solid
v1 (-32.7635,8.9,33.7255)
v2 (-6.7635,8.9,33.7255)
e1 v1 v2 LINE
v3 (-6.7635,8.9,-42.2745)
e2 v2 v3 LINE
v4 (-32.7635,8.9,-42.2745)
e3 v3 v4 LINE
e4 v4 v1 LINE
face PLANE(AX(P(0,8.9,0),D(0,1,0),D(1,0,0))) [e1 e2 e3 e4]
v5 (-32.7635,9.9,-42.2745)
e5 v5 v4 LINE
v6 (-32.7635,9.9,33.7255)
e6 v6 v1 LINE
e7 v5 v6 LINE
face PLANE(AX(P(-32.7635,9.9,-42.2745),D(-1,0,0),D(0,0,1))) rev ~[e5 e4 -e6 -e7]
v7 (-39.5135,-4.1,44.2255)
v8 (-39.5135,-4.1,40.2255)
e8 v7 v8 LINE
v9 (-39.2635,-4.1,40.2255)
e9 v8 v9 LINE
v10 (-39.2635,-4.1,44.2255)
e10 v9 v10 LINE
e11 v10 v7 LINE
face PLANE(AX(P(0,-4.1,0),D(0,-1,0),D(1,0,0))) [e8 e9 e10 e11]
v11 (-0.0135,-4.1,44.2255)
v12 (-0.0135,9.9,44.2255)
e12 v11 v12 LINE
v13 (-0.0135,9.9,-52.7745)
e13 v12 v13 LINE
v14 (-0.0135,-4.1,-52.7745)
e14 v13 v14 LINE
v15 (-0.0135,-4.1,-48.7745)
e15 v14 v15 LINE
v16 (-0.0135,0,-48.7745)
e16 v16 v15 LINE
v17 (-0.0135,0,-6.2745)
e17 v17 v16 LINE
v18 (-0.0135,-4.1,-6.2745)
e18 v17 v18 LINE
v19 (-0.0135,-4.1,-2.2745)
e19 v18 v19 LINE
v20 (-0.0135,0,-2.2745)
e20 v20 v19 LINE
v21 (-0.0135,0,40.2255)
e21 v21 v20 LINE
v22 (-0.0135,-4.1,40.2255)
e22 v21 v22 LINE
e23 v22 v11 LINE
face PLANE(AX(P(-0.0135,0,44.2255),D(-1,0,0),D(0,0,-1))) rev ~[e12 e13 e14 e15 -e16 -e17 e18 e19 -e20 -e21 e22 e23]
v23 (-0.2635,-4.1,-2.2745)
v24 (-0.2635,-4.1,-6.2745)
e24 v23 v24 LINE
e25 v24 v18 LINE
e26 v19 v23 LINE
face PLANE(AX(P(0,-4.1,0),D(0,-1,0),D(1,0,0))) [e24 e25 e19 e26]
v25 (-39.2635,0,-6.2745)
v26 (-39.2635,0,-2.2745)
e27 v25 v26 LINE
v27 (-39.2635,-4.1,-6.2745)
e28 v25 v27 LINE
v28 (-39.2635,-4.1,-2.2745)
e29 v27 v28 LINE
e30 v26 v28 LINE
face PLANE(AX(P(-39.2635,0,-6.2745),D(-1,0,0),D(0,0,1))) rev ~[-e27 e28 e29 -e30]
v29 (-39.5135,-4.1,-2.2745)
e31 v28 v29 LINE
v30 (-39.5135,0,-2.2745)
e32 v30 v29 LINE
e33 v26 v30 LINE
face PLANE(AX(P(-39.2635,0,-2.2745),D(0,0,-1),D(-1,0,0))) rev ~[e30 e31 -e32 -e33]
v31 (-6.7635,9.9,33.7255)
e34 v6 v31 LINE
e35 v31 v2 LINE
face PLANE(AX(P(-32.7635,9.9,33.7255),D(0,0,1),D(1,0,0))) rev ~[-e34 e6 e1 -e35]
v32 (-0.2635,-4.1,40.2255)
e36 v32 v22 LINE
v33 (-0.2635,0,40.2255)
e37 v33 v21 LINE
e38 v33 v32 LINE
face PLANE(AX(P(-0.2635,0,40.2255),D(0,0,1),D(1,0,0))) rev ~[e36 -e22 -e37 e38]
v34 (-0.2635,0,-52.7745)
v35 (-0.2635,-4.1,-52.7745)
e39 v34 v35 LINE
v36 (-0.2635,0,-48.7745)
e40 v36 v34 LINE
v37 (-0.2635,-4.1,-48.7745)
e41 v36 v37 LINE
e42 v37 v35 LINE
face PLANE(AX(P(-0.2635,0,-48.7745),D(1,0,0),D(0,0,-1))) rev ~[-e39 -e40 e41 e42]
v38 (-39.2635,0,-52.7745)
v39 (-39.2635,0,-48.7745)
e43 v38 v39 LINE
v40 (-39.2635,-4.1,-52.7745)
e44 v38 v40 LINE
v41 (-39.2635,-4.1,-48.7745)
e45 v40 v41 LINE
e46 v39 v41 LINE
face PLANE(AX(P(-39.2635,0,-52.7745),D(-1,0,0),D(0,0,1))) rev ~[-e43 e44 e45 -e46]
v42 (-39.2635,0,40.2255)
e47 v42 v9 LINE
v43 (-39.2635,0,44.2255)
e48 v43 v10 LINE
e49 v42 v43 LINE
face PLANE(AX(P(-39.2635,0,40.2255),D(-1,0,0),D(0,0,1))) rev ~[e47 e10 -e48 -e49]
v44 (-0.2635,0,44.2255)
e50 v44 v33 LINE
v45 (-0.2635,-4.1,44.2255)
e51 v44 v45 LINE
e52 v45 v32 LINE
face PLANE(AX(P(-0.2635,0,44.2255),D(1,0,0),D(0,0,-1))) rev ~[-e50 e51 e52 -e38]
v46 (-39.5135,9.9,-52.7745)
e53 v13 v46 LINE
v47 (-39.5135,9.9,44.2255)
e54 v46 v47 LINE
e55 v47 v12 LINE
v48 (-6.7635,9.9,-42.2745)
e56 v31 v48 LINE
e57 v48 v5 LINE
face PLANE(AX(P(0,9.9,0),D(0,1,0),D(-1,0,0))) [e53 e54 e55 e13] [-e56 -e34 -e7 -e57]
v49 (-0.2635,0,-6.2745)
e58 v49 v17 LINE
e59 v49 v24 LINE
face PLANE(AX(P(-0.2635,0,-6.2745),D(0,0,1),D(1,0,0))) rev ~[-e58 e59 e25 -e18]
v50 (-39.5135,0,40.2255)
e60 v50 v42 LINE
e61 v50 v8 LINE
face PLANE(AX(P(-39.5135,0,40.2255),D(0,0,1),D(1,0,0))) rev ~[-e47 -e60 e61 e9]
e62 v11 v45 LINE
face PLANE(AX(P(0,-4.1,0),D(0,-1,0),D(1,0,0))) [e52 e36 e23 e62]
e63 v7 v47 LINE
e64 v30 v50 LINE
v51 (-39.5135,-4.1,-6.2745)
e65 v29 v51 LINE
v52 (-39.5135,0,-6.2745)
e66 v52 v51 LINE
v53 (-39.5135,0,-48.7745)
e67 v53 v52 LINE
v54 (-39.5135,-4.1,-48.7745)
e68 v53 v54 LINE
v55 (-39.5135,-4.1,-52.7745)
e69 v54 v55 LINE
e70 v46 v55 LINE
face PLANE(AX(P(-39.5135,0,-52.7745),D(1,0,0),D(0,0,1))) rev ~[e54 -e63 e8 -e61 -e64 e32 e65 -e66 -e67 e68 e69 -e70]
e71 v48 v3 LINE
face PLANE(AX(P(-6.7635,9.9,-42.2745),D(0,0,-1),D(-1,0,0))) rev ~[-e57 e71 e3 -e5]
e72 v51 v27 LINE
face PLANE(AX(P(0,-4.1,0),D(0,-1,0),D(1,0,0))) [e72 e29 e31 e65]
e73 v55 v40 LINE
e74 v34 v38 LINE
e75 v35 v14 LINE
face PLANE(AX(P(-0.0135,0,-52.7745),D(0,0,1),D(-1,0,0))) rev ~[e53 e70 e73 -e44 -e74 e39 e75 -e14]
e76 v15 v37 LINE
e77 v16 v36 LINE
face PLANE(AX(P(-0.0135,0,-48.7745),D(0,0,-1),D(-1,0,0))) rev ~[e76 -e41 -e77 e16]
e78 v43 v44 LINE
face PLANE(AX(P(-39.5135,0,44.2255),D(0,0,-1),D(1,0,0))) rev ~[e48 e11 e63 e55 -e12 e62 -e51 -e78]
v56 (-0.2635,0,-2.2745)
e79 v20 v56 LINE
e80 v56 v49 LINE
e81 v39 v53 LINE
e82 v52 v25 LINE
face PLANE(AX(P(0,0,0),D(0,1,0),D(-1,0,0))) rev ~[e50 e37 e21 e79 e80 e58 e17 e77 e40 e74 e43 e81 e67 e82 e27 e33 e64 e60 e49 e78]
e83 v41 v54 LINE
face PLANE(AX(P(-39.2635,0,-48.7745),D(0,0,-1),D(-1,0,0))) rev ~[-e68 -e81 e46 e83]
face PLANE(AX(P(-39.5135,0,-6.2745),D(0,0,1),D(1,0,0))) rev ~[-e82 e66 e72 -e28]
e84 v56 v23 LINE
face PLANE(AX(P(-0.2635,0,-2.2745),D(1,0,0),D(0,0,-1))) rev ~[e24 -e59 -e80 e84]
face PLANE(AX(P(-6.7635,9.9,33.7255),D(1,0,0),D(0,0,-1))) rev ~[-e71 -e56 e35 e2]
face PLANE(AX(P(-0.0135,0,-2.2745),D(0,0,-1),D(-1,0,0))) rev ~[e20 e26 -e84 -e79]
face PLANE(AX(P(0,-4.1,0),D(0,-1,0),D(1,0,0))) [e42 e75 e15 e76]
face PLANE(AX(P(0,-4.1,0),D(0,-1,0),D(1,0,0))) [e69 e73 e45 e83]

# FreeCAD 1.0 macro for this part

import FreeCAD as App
import Part
import Sketcher
from FreeCAD import Vector

doc = App.newDocument("Part")
body = doc.addObject("PartDesign::Body", "Body")

sketch1 = doc.addObject("Sketcher::SketchObject", "Sketch")
body.addObject(sketch1)
sketch1.AttachmentSupport = (doc.XZ_Plane, [""])
sketch1.MapMode = "FlatFace"
sketch1.addGeometry([
    Part.LineSegment(Vector(-39.5135, -52.7745, 0), Vector(-39.5135, 44.2255, 0)),
    Part.LineSegment(Vector(-39.5135, 44.2255, 0), Vector(-0.0135, 44.2255, 0)),
    Part.LineSegment(Vector(-0.0135, 44.2255, 0), Vector(-0.0135, -52.7745, 0)),
    Part.LineSegment(Vector(-0.0135, -52.7745, 0), Vector(-39.5135, -52.7745, 0)),
], False)
sketch1.addConstraint([
    Sketcher.Constraint("Coincident", 0, 2, 1, 1),
    Sketcher.Constraint("Coincident", 1, 2, 2, 1),
    Sketcher.Constraint("Coincident", 2, 2, 3, 1),
    Sketcher.Constraint("Coincident", 3, 2, 0, 1),
    Sketcher.Constraint("Vertical", 0),
    Sketcher.Constraint("Horizontal", 1),
    Sketcher.Constraint("Vertical", 2),
    Sketcher.Constraint("Horizontal", 3),
    Sketcher.Constraint("DistanceY", 0, 1, 0, 2, 97.0),
    Sketcher.Constraint("DistanceX", 1, 1, 1, 2, 39.5),
    Sketcher.Constraint("DistanceX", 0, 2, -1, 1, 39.5135),
    Sketcher.Constraint("DistanceY", -1, 1, 0, 2, 44.2255),
])
pad1 = doc.addObject("PartDesign::Pad", "Pad")
body.addObject(pad1)
pad1.Profile = sketch1
pad1.Length = 9.9
pad1.Reversed = True

sketch2 = doc.addObject("Sketcher::SketchObject", "Sketch001")
body.addObject(sketch2)
sketch2.AttachmentSupport = (doc.XZ_Plane, [""])
sketch2.MapMode = "FlatFace"
sketch2.AttachmentOffset = App.Placement(Vector(0, 0, -9.9), App.Rotation())
sketch2.addGeometry([
    Part.LineSegment(Vector(-32.7635, -42.2745, 0), Vector(-32.7635, 33.7255, 0)),
    Part.LineSegment(Vector(-32.7635, 33.7255, 0), Vector(-6.7635, 33.7255, 0)),
    Part.LineSegment(Vector(-6.7635, 33.7255, 0), Vector(-6.7635, -42.2745, 0)),
    Part.LineSegment(Vector(-6.7635, -42.2745, 0), Vector(-32.7635, -42.2745, 0)),
], False)
sketch2.addConstraint([
    Sketcher.Constraint("Coincident", 0, 2, 1, 1),
    Sketcher.Constraint("Coincident", 1, 2, 2, 1),
    Sketcher.Constraint("Coincident", 2, 2, 3, 1),
    Sketcher.Constraint("Coincident", 3, 2, 0, 1),
    Sketcher.Constraint("Vertical", 0),
    Sketcher.Constraint("Horizontal", 1),
    Sketcher.Constraint("Vertical", 2),
    Sketcher.Constraint("Horizontal", 3),
    Sketcher.Constraint("DistanceX", 1, 1, 1, 2, 26.0),
    Sketcher.Constraint("DistanceY", 0, 1, 0, 2, 76.0),
    Sketcher.Constraint("DistanceX", 0, 2, -1, 1, 32.7635),
    Sketcher.Constraint("DistanceY", -1, 1, 0, 2, 33.7255),
])
pocket1 = doc.addObject("PartDesign::Pocket", "Pocket")
body.addObject(pocket1)
pocket1.Profile = sketch2
pocket1.Length = 1
pocket1.Reversed = True

sketch3 = doc.addObject("Sketcher::SketchObject", "Sketch002")
body.addObject(sketch3)
sketch3.AttachmentSupport = (doc.XZ_Plane, [""])
sketch3.MapMode = "FlatFace"
sketch3.addGeometry([
    Part.LineSegment(Vector(-0.0135, 40.2255, 0), Vector(-0.0135, 44.2255, 0)),
    Part.LineSegment(Vector(-0.0135, 44.2255, 0), Vector(-0.2635, 44.2255, 0)),
    Part.LineSegment(Vector(-0.2635, 44.2255, 0), Vector(-0.2635, 40.2255, 0)),
    Part.LineSegment(Vector(-0.2635, 40.2255, 0), Vector(-0.0135, 40.2255, 0)),
    Part.LineSegment(Vector(-39.2635, 40.2255, 0), Vector(-39.2635, 44.2255, 0)),
    Part.LineSegment(Vector(-39.2635, 44.2255, 0), Vector(-39.5135, 44.2255, 0)),
    Part.LineSegment(Vector(-39.5135, 44.2255, 0), Vector(-39.5135, 40.2255, 0)),
    Part.LineSegment(Vector(-39.5135, 40.2255, 0), Vector(-39.2635, 40.2255, 0)),
    Part.LineSegment(Vector(-0.0135, -6.2745, 0), Vector(-0.0135, -2.2745, 0)),
    Part.LineSegment(Vector(-0.0135, -2.2745, 0), Vector(-0.2635, -2.2745, 0)),
    Part.LineSegment(Vector(-0.2635, -2.2745, 0), Vector(-0.2635, -6.2745, 0)),
    Part.LineSegment(Vector(-0.2635, -6.2745, 0), Vector(-0.0135, -6.2745, 0)),
    Part.LineSegment(Vector(-0.0135, -52.7745, 0), Vector(-0.0135, -48.7745, 0)),
    Part.LineSegment(Vector(-0.0135, -48.7745, 0), Vector(-0.2635, -48.7745, 0)),
    Part.LineSegment(Vector(-0.2635, -48.7745, 0), Vector(-0.2635, -52.7745, 0)),
    Part.LineSegment(Vector(-0.2635, -52.7745, 0), Vector(-0.0135, -52.7745, 0)),
    Part.LineSegment(Vector(-39.2635, -2.2745, 0), Vector(-39.5135, -2.2745, 0)),
    Part.LineSegment(Vector(-39.5135, -2.2745, 0), Vector(-39.5135, -6.2745, 0)),
    Part.LineSegment(Vector(-39.5135, -6.2745, 0), Vector(-39.2635, -6.2745, 0)),
    Part.LineSegment(Vector(-39.2635, -6.2745, 0), Vector(-39.2635, -2.2745, 0)),
    Part.LineSegment(Vector(-39.2635, -48.7745, 0), Vector(-39.5135, -48.7745, 0)),
    Part.LineSegment(Vector(-39.5135, -48.7745, 0), Vector(-39.5135, -52.7745, 0)),
    Part.LineSegment(Vector(-39.5135, -52.7745, 0), Vector(-39.2635, -52.7745, 0)),
    Part.LineSegment(Vector(-39.2635, -52.7745, 0), Vector(-39.2635, -48.7745, 0)),
], False)
sketch3.addConstraint([
    Sketcher.Constraint("Coincident", 0, 2, 1, 1),
    Sketcher.Constraint("Coincident", 1, 2, 2, 1),
    Sketcher.Constraint("Coincident", 2, 2, 3, 1),
    Sketcher.Constraint("Coincident", 3, 2, 0, 1),
    Sketcher.Constraint("Coincident", 4, 2, 5, 1),
    Sketcher.Constraint("Coincident", 5, 2, 6, 1),
    Sketcher.Constraint("Coincident", 6, 2, 7, 1),
    Sketcher.Constraint("Coincident", 7, 2, 4, 1),
    Sketcher.Constraint("Coincident", 8, 2, 9, 1),
    Sketcher.Constraint("Coincident", 9, 2, 10, 1),
    Sketcher.Constraint("Coincident", 10, 2, 11, 1),
    Sketcher.Constraint("Coincident", 11, 2, 8, 1),
    Sketcher.Constraint("Coincident", 12, 2, 13, 1),
    Sketcher.Constraint("Coincident", 13, 2, 14, 1),
    Sketcher.Constraint("Coincident", 14, 2, 15, 1),
    Sketcher.Constraint("Coincident", 15, 2, 12, 1),
    Sketcher.Constraint("Coincident", 16, 2, 17, 1),
    Sketcher.Constraint("Coincident", 17, 2, 18, 1),
    Sketcher.Constraint("Coincident", 18, 2, 19, 1),
    Sketcher.Constraint("Coincident", 19, 2, 16, 1),
    Sketcher.Constraint("Coincident", 20, 2, 21, 1),
    Sketcher.Constraint("Coincident", 21, 2, 22, 1),
    Sketcher.Constraint("Coincident", 22, 2, 23, 1),
    Sketcher.Constraint("Coincident", 23, 2, 20, 1),
    Sketcher.Constraint("Vertical", 0),
    Sketcher.Constraint("Horizontal", 1),
    Sketcher.Constraint("Vertical", 2),
    Sketcher.Constraint("Horizontal", 3),
    Sketcher.Constraint("Vertical", 4),
    Sketcher.Constraint("Horizontal", 5),
    Sketcher.Constraint("Vertical", 6),
    Sketcher.Constraint("Horizontal", 7),
    Sketcher.Constraint("Vertical", 8),
    Sketcher.Constraint("Horizontal", 9),
    Sketcher.Constraint("Vertical", 10),
    Sketcher.Constraint("Horizontal", 11),
    Sketcher.Constraint("Vertical", 12),
    Sketcher.Constraint("Horizontal", 13),
    Sketcher.Constraint("Vertical", 14),
    Sketcher.Constraint("Horizontal", 15),
    Sketcher.Constraint("Horizontal", 16),
    Sketcher.Constraint("Vertical", 17),
    Sketcher.Constraint("Horizontal", 18),
    Sketcher.Constraint("Vertical", 19),
    Sketcher.Constraint("Horizontal", 20),
    Sketcher.Constraint("Vertical", 21),
    Sketcher.Constraint("Horizontal", 22),
    Sketcher.Constraint("Vertical", 23),
    Sketcher.Constraint("Horizontal", 1, 2, 4, 2),
    Sketcher.Constraint("Horizontal", 3, 2, 6, 2),
    Sketcher.Constraint("Horizontal", 9, 2, 16, 2),
    Sketcher.Constraint("Horizontal", 11, 2, 17, 2),
    Sketcher.Constraint("Horizontal", 13, 2, 20, 2),
    Sketcher.Constraint("Horizontal", 15, 2, 21, 2),
    Sketcher.Constraint("Vertical", 3, 2, 8, 2),
    Sketcher.Constraint("Vertical", 2, 2, 9, 2),
    Sketcher.Constraint("Vertical", 11, 2, 12, 2),
    Sketcher.Constraint("Vertical", 10, 2, 13, 2),
    Sketcher.Constraint("Vertical", 6, 2, 16, 2),
    Sketcher.Constraint("Vertical", 7, 2, 18, 2),
    Sketcher.Constraint("Vertical", 17, 2, 20, 2),
    Sketcher.Constraint("Vertical", 19, 2, 22, 2),
    Sketcher.Constraint("Equal", 3, 5),
    Sketcher.Constraint("Equal", 6, 8),
    Sketcher.Constraint("Equal", 10, 12),
    Sketcher.Constraint("DistanceY", 0, 1, 0, 2, 4.0),
    Sketcher.Constraint("DistanceX", 1, 2, 1, 1, 0.25),
    Sketcher.Constraint("DistanceX", 4, 2, 1, 2, 39.0),
    Sketcher.Constraint("DistanceY", 12, 2, 3, 2, 89.0),
    Sketcher.Constraint("DistanceY", 8, 2, 3, 2, 42.5),
    Sketcher.Constraint("DistanceX", 0, 2, -1, 1, 0.0135),
    Sketcher.Constraint("DistanceY", -1, 1, 0, 2, 44.2255),
])
pad2 = doc.addObject("PartDesign::Pad", "Pad001")
body.addObject(pad2)
pad2.Profile = sketch3
pad2.Length = 4.1

doc.recompute()
